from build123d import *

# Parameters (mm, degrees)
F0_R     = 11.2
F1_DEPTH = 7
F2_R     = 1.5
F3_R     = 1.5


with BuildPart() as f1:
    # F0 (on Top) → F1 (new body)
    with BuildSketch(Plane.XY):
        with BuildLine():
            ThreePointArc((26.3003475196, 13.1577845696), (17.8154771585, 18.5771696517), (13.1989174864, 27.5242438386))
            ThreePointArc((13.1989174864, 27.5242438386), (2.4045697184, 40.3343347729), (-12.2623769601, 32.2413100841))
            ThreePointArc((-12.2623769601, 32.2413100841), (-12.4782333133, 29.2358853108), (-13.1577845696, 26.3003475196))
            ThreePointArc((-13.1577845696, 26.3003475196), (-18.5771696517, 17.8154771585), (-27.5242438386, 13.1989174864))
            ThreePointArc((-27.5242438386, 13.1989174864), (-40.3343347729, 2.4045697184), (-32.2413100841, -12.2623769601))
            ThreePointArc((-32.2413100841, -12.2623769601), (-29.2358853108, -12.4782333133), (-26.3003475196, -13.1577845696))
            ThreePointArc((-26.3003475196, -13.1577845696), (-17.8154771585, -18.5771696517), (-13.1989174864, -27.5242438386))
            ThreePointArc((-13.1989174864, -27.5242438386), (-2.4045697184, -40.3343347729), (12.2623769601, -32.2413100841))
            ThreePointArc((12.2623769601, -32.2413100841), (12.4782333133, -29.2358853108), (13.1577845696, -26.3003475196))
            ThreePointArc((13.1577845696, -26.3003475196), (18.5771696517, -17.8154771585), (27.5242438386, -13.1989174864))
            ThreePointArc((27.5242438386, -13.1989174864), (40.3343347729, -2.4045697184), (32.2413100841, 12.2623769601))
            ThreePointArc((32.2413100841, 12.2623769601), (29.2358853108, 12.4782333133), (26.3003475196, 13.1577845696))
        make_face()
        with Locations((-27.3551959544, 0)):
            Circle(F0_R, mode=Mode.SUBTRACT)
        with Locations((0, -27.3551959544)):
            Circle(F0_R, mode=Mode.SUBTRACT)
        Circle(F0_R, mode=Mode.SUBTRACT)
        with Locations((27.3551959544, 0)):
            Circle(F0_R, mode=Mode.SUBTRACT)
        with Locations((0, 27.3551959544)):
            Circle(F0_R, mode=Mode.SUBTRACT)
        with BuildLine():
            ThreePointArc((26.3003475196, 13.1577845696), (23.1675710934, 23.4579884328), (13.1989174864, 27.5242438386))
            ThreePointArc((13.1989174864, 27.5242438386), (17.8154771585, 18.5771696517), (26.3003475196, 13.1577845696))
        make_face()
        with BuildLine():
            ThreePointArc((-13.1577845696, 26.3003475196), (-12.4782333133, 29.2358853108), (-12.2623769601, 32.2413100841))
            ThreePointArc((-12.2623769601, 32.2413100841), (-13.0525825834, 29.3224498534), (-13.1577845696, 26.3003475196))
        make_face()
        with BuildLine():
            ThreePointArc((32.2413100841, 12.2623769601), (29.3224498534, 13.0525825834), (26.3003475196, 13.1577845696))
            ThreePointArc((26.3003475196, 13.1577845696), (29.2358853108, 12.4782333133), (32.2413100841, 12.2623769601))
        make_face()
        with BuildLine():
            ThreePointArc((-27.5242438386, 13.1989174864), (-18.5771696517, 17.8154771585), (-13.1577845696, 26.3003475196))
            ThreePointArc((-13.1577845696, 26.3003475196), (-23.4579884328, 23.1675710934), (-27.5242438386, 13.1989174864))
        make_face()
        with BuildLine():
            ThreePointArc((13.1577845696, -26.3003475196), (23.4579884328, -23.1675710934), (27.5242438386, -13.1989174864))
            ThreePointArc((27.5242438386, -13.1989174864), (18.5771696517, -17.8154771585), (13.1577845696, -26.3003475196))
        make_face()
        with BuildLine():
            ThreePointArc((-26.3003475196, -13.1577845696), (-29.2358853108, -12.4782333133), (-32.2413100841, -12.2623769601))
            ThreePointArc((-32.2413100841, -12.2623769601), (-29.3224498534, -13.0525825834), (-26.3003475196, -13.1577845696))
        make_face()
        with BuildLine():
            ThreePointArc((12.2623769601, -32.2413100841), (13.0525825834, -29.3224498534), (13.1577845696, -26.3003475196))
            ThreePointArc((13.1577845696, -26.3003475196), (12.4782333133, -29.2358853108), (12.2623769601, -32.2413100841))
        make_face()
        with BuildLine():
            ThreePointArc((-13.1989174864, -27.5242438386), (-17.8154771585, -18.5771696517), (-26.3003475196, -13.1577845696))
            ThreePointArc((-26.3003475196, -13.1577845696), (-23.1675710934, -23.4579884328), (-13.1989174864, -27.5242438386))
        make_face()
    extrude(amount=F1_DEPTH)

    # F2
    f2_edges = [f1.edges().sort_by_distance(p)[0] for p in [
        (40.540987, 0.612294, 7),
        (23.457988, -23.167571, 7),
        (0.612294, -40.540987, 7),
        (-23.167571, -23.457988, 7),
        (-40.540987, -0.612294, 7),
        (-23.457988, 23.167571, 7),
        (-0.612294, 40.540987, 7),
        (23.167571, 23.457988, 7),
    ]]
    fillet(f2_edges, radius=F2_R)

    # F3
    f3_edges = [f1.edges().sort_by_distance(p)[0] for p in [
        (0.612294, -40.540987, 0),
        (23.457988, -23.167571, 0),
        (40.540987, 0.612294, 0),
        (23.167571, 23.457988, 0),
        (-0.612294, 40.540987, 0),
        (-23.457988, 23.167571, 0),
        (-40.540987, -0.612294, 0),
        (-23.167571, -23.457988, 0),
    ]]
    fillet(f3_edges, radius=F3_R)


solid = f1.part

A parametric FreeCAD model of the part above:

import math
import FreeCAD as App
import Part
import Sketcher


def edges_at(feature, points):
    """Names of the edges that pass closest to the given points."""
    edges = feature.Shape.Edges
    near = lambda p: min(range(len(edges)), key=lambda i: edges[i].distToShape(Part.Vertex(*p))[0])
    return sorted({f"Edge{near(p) + 1}" for p in points})

doc = App.newDocument("Part")
body = doc.addObject("PartDesign::Body", "Body")

# Sketch on XY plane
sketch1 = doc.addObject("Sketcher::SketchObject", "Sketch")
body.addObject(sketch1)
sketch1.AttachmentSupport = (doc.XY_Plane, [""])
sketch1.MapMode = "FlatFace"
sketch1.addGeometry([
    Part.ArcOfCircle(Part.Circle(App.Vector(14, 15, 0), App.Vector(0, 0, 1), 13), math.radians(-9), math.radians(93)),  # 0
    Part.ArcOfCircle(Part.Circle(App.Vector(0, 27, 0), App.Vector(0, 0, 1), 13), math.radians(1), math.radians(158)),  # 1
    Part.ArcOfCircle(Part.Circle(App.Vector(0, 27, 0), App.Vector(0, 0, 1), 13), math.radians(158), math.radians(185)),  # 2
    Part.ArcOfCircle(Part.Circle(App.Vector(-15, 14, 0), App.Vector(0, 0, 1), 13), math.radians(81), math.radians(183)),  # 3
    Part.ArcOfCircle(Part.Circle(App.Vector(-27, 0, 0), App.Vector(0, 0, 1), 13), math.radians(91), math.radians(248)),  # 4
    Part.ArcOfCircle(Part.Circle(App.Vector(-27, 0, 0), App.Vector(0, 0, 1), 13), math.radians(-112), math.radians(-85)),  # 5
    Part.ArcOfCircle(Part.Circle(App.Vector(-14, -15, 0), App.Vector(0, 0, 1), 13), math.radians(171), math.radians(273)),  # 6
    Part.ArcOfCircle(Part.Circle(App.Vector(0, -27, 0), App.Vector(0, 0, 1), 13), math.radians(-179), math.radians(-22)),  # 7
    Part.ArcOfCircle(Part.Circle(App.Vector(0, -27, 0), App.Vector(0, 0, 1), 13), math.radians(-22), math.radians(5)),  # 8
    Part.ArcOfCircle(Part.Circle(App.Vector(15, -14, 0), App.Vector(0, 0, 1), 13), math.radians(-99), math.radians(3)),  # 9
    Part.ArcOfCircle(Part.Circle(App.Vector(27, 0, 0), App.Vector(0, 0, 1), 13), math.radians(-89), math.radians(68)),  # 10
    Part.ArcOfCircle(Part.Circle(App.Vector(27, 0, 0), App.Vector(0, 0, 1), 13), math.radians(68), math.radians(95)),  # 11
    Part.Circle(App.Vector(0, -27, 0), App.Vector(0, 0, 1), 11),  # 12
    Part.Circle(App.Vector(-27, 0, 0), App.Vector(0, 0, 1), 11),  # 13
    Part.Circle(App.Vector(0, 0, 0), App.Vector(0, 0, 1), 11),  # 14
    Part.Circle(App.Vector(27, 0, 0), App.Vector(0, 0, 1), 11),  # 15
    Part.Circle(App.Vector(0, 27, 0), App.Vector(0, 0, 1), 11),  # 16
], False)
sketch1.addConstraint([
    Sketcher.Constraint("Coincident", 0, 2, 1, 1),
    Sketcher.Constraint("Tangent", 1, 2, 2, 1),
    Sketcher.Constraint("Coincident", 2, 2, 3, 1),
    Sketcher.Constraint("Coincident", 3, 2, 4, 1),
    Sketcher.Constraint("Tangent", 4, 2, 5, 1),
    Sketcher.Constraint("Coincident", 5, 2, 6, 1),
    Sketcher.Constraint("Coincident", 6, 2, 7, 1),
    Sketcher.Constraint("Tangent", 7, 2, 8, 1),
    Sketcher.Constraint("Coincident", 8, 2, 9, 1),
    Sketcher.Constraint("Coincident", 9, 2, 10, 1),
    Sketcher.Constraint("Tangent", 10, 2, 11, 1),
    Sketcher.Constraint("Coincident", 11, 2, 0, 1),
    Sketcher.Constraint("Coincident", 14, 3, -1, 1),
    Sketcher.Constraint("Coincident", 12, 3, 7, 3),
    Sketcher.Constraint("Coincident", 13, 3, 4, 3),
    Sketcher.Constraint("Coincident", 15, 3, 10, 3),
    Sketcher.Constraint("Coincident", 16, 3, 1, 3),
    Sketcher.Constraint("Equal", 1, 2),
    Sketcher.Constraint("Equal", 0, 3),
    Sketcher.Constraint("Equal", 2, 4),
    Sketcher.Constraint("Equal", 4, 5),
    Sketcher.Constraint("Equal", 3, 6),
    Sketcher.Constraint("Equal", 5, 7),
    Sketcher.Constraint("Equal", 7, 8),
    Sketcher.Constraint("Equal", 6, 9),
    Sketcher.Constraint("Equal", 8, 10),
    Sketcher.Constraint("Equal", 10, 11),
    Sketcher.Constraint("Equal", 12, 13),
    Sketcher.Constraint("Equal", 13, 14),
    Sketcher.Constraint("Equal", 14, 15),
    Sketcher.Constraint("Equal", 15, 16),
    Sketcher.Constraint("Symmetric", 0, 3, 6, 3, -1, 1),
    Sketcher.Constraint("Symmetric", 1, 3, 7, 3, -1, 1),
    Sketcher.Constraint("Symmetric", 3, 3, 9, 3, -1, 1),
    Sketcher.Constraint("Symmetric", 4, 3, 10, 3, -1, 1),
    Sketcher.Constraint("PointOnObject", 1, 3, -2),
    Sketcher.Constraint("PointOnObject", 4, 3, -1),
    Sketcher.Constraint("Diameter", 12, 22.4),
    Sketcher.Constraint("Radius", 1, 13.2),
    Sketcher.Constraint("Radius", 0, 12.528537),
    Sketcher.Constraint("DistanceX", -1, 1, 0, 3, 13.91037),
    Sketcher.Constraint("DistanceY", -1, 1, 3, 3, 13.91037),
    Sketcher.Constraint("DistanceY", -1, 1, 1, 2, 32.24131),
    Sketcher.Constraint("DistanceX", 4, 2, -1, 1, 32.24131),
    Sketcher.Constraint("DistanceY", 7, 2, -1, 1, 32.24131),
    Sketcher.Constraint("DistanceX", -1, 1, 10, 2, 32.24131),
    Sketcher.Constraint("DistanceY", 6, 3, 1, 3, 42.37112),
    Sketcher.Constraint("DistanceX", 3, 3, 2, 2, 1.858139),
    Sketcher.Constraint("DistanceY", 2, 2, 1, 3, 1.054848),
    Sketcher.Constraint("DistanceY", 6, 3, 5, 2, 1.858139),
])
pad1 = doc.addObject("PartDesign::Pad", "Pad")
body.addObject(pad1)
pad1.Profile = sketch1
pad1.Length = 7
doc.recompute()

fillet = doc.addObject("PartDesign::Fillet", "Fillet")
body.addObject(fillet)
fillet.Base = (pad1, edges_at(pad1, [
    (40.334, -2.405, 7),
    (23.458, -23.168, 7),
    (-2.405, -40.334, 7),
    (-23.168, -23.458, 7),
    (-40.334, 2.405, 7),
    (-23.458, 23.168, 7),
    (2.405, 40.334, 7),
    (23.168, 23.458, 7),
]))
fillet.Radius = 1.5
doc.recompute()

fillet2 = doc.addObject("PartDesign::Fillet", "Fillet001")
body.addObject(fillet2)
fillet2.Base = (fillet, edges_at(fillet, [
    (-2.405, -40.334, 0),
    (23.458, -23.168, 0),
    (40.334, -2.405, 0),
    (23.168, 23.458, 0),
    (2.405, 40.334, 0),
    (-23.458, 23.168, 0),
    (-40.334, 2.405, 0),
    (-23.168, -23.458, 0),
]))
fillet2.Radius = 1.5

doc.recompute()
